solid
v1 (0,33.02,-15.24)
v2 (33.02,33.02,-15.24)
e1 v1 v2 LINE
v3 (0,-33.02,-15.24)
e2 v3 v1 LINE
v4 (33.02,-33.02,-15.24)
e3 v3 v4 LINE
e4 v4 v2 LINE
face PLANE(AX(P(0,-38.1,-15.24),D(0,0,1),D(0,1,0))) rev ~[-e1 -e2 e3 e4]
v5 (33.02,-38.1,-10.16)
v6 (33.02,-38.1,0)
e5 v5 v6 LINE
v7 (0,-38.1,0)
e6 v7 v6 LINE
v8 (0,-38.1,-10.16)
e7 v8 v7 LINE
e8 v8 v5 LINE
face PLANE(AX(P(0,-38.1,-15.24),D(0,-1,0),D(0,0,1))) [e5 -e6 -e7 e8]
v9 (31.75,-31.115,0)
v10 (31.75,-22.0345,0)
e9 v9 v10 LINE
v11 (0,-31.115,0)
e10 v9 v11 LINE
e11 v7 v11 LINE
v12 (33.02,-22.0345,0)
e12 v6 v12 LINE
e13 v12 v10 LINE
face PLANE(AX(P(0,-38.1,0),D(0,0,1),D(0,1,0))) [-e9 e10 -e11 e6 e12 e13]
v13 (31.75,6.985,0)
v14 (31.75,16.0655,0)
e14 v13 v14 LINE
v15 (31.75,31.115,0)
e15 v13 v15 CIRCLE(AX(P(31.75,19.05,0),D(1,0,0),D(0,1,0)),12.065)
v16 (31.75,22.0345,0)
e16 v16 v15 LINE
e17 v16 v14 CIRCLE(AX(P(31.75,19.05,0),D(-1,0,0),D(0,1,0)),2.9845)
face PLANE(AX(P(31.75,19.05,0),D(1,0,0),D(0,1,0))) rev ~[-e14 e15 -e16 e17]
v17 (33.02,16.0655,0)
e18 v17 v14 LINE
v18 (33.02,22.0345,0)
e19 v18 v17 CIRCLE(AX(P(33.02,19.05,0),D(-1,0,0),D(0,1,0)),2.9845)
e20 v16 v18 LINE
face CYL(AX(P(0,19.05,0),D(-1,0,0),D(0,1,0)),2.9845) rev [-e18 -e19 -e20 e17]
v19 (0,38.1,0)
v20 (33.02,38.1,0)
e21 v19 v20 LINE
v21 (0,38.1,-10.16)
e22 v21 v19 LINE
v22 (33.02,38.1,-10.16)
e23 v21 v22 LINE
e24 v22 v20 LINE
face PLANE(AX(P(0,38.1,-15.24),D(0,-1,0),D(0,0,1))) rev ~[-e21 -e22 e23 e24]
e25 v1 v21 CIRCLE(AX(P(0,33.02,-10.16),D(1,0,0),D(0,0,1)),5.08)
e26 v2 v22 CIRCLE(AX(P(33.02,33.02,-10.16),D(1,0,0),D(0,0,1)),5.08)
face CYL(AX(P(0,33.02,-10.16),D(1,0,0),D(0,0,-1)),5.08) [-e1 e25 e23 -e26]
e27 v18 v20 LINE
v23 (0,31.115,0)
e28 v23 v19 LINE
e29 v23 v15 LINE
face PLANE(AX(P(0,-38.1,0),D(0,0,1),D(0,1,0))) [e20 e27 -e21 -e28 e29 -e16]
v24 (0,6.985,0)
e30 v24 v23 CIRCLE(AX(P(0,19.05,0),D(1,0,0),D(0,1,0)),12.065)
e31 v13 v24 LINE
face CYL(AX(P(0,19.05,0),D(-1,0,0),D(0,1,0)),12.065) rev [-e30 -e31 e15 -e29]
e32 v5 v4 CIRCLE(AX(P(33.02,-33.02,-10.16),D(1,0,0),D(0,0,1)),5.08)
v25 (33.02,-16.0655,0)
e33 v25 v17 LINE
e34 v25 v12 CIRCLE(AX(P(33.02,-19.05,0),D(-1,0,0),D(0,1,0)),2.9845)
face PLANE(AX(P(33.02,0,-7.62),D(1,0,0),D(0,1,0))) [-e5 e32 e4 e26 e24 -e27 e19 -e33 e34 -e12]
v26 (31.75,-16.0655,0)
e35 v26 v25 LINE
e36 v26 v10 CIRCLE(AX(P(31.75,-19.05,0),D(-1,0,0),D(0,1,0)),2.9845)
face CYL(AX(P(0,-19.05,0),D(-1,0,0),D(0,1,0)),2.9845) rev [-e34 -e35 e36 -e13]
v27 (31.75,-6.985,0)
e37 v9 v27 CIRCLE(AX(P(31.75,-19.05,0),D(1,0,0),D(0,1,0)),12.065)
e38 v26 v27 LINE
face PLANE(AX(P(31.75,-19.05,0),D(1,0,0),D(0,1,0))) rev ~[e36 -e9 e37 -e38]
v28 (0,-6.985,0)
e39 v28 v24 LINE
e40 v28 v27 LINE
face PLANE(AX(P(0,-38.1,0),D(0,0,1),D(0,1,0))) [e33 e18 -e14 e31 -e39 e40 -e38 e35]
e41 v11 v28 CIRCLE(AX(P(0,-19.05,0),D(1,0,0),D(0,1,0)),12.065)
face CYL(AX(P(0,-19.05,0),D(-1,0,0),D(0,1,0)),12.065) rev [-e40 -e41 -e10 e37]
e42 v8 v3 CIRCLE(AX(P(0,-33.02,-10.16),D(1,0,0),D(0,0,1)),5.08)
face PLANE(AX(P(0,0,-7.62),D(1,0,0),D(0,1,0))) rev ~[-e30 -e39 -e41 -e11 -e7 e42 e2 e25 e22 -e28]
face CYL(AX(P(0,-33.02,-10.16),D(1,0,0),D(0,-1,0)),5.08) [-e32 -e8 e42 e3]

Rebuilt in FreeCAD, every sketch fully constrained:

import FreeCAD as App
import Part
import Sketcher

V = App.Vector
Q = App.Units.Quantity


def edges_at(feature, points):
    """Names of the edges that pass closest to the given points."""
    edges = feature.Shape.Edges
    near = lambda p: min(range(len(edges)), key=lambda i: edges[i].distToShape(Part.Vertex(*p))[0])
    return sorted({f"Edge{near(p) + 1}" for p in points})

doc = App.newDocument("Part")
body = doc.addObject("PartDesign::Body", "Body")

# Sketch on YZ plane
sketch1 = body.newObject("Sketcher::SketchObject", "Sketch")
sketch1.AttachmentSupport = (doc.getObject("YZ_Plane"), [""])
sketch1.MapMode = "FlatFace"
sketch1.addGeometry([
    Part.LineSegment(V(-38, 0, 0), V(-38, -15, 0)),
    Part.LineSegment(V(-38, -15, 0), V(38, -15, 0)),
    Part.LineSegment(V(38, -15, 0), V(38, 0, 0)),
    Part.LineSegment(V(38, 0, 0), V(-38, 0, 0)),
], False)
sketch1.addConstraint([
    Sketcher.Constraint("Coincident", 0, 2, 1, 1),
    Sketcher.Constraint("Coincident", 1, 2, 2, 1),
    Sketcher.Constraint("Coincident", 2, 2, 3, 1),
    Sketcher.Constraint("Coincident", 3, 2, 0, 1),
    Sketcher.Constraint("Vertical", 0),
    Sketcher.Constraint("Horizontal", 1),
    Sketcher.Constraint("Vertical", 2),
    Sketcher.Constraint("Horizontal", 3),
    Sketcher.Constraint("Symmetric", 2, 2, 3, 2, -1, 1),
    Sketcher.Constraint("DistanceX", 1, 1, 1, 2, Q("3 in")),
    Sketcher.Constraint("DistanceY", 0, 2, 0, 1, Q("0.6 in")),
])
pad1 = body.newObject("PartDesign::Pad", "Pad")
pad1.Profile = sketch1
pad1.Length = Q("1.3 in")

# Sketch on YZ plane
sketch2 = body.newObject("Sketcher::SketchObject", "Sketch001")
sketch2.AttachmentSupport = (doc.getObject("YZ_Plane"), [""])
sketch2.MapMode = "FlatFace"
sketch2.addGeometry([
    Part.Circle(V(19, 0, 0), V(0, 0, 1), 12),
    Part.Circle(V(-19, 0, 0), V(0, 0, 1), 12),
], False)
sketch2.addConstraint([
    Sketcher.Constraint("Equal", 0, 1),
    Sketcher.Constraint("Symmetric", 0, 3, 1, 3, -1, 1),
    Sketcher.Constraint("PointOnObject", 0, 3, -1),
    Sketcher.Constraint("Diameter", 0, Q("0.95 in")),
    Sketcher.Constraint("DistanceX", 1, 3, 0, 3, Q("1.5 in")),
])
pocket1 = body.newObject("PartDesign::Pocket", "Pocket")
pocket1.Profile = sketch2
pocket1.Length = Q("1.25 in")
pocket1.Reversed = True

# Sketch on YZ plane
sketch3 = body.newObject("Sketcher::SketchObject", "Sketch002")
sketch3.AttachmentSupport = (doc.getObject("YZ_Plane"), [""])
sketch3.MapMode = "FlatFace"
sketch3.addGeometry([
    Part.Circle(V(19.1, 0, 0), V(0, 0, 1), 3),
    Part.Circle(V(-19.1, 0, 0), V(0, 0, 1), 3),
], False)
sketch3.addConstraint([
    Sketcher.Constraint("Equal", 0, 1),
    Sketcher.Constraint("Symmetric", 0, 3, 1, 3, -1, 1),
    Sketcher.Constraint("PointOnObject", 0, 3, -1),
    Sketcher.Constraint("Diameter", 0, Q("0.235 in")),
    Sketcher.Constraint("DistanceX", 1, 3, 0, 3, Q("1.5 in")),
])
pocket2 = body.newObject("PartDesign::Pocket", "Pocket001")
pocket2.Profile = sketch3
pocket2.Length = Q("2 in")
pocket2.Reversed = True
doc.recompute()

fillet = body.newObject("PartDesign::Fillet", "Fillet")
fillet.Base = (pocket2, edges_at(pocket2, [(16.51, -38.1, -15.24), (16.51, 38.1, -15.24)]))
fillet.Radius = Q("0.2 in")

doc.recompute()
